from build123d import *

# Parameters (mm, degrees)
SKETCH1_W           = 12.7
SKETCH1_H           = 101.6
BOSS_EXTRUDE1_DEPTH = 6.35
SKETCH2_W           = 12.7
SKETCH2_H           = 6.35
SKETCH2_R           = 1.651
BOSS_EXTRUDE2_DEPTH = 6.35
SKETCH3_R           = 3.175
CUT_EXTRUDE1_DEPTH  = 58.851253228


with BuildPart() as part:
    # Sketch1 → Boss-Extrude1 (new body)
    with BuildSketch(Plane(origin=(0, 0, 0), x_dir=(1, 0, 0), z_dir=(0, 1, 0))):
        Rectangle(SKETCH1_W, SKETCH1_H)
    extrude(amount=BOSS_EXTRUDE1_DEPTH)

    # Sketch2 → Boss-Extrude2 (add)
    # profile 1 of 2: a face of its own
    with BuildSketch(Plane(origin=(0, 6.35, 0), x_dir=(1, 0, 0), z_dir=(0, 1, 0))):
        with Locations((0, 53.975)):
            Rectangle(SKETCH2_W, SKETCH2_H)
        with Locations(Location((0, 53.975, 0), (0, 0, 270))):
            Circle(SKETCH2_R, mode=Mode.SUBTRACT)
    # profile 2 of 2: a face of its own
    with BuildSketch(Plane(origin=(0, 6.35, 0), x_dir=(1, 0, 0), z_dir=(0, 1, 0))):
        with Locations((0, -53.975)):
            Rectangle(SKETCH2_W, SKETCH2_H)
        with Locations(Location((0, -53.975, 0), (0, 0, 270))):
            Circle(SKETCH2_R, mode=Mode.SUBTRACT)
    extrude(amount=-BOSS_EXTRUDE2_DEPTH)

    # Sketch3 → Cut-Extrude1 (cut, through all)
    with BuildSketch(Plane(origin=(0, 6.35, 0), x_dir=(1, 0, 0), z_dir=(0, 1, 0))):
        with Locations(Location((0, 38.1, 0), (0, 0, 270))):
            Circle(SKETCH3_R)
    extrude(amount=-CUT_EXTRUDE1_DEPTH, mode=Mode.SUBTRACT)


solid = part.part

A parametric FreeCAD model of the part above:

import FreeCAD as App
import Part
import Sketcher
Q = App.Units.Quantity

doc = App.newDocument("Part")
body = doc.addObject("PartDesign::Body", "Body")

sketch1 = body.newObject("Sketcher::SketchObject", "Sketch")
sketch1.AttachmentSupport = (doc.getObject("XZ_Plane"), [""])
sketch1.MapMode = "FlatFace"
sketch1.addGeometry([
    Part.LineSegment(App.Vector(-6, -51, 0), App.Vector(-6, 51, 0)),
    Part.LineSegment(App.Vector(-6, 51, 0), App.Vector(6, 51, 0)),
    Part.LineSegment(App.Vector(6, 51, 0), App.Vector(6, -51, 0)),
    Part.LineSegment(App.Vector(6, -51, 0), App.Vector(-6, -51, 0)),
], False)
sketch1.addConstraint([
    Sketcher.Constraint("Coincident", 0, 2, 1, 1),
    Sketcher.Constraint("Coincident", 1, 2, 2, 1),
    Sketcher.Constraint("Coincident", 2, 2, 3, 1),
    Sketcher.Constraint("Coincident", 3, 2, 0, 1),
    Sketcher.Constraint("Vertical", 0),
    Sketcher.Constraint("Horizontal", 1),
    Sketcher.Constraint("Vertical", 2),
    Sketcher.Constraint("Horizontal", 3),
    Sketcher.Constraint("Symmetric", 0, 2, 2, 2, -1, 1),
    Sketcher.Constraint("DistanceY", 0, 1, 0, 2, Q("4 in")),
    Sketcher.Constraint("DistanceX", 1, 1, 1, 2, Q("0.5 in")),
])
pad1 = body.newObject("PartDesign::Pad", "Pad")
pad1.Profile = sketch1
pad1.Length = Q("0.25 in")
pad1.Reversed = True

sketch2 = body.newObject("Sketcher::SketchObject", "Sketch001")
sketch2.AttachmentSupport = (doc.getObject("XZ_Plane"), [""])
sketch2.MapMode = "FlatFace"
sketch2.AttachmentOffset = App.Placement(App.Vector(0, 0, -0.25 * 25.4), App.Rotation())
sketch2.addGeometry([
    Part.LineSegment(App.Vector(-6.3, -57.1, 0), App.Vector(-6.3, -50.8, 0)),
    Part.LineSegment(App.Vector(-6.3, -50.8, 0), App.Vector(6.3, -50.8, 0)),
    Part.LineSegment(App.Vector(6.3, -50.8, 0), App.Vector(6.3, -57.1, 0)),
    Part.LineSegment(App.Vector(6.3, -57.1, 0), App.Vector(-6.3, -57.1, 0)),
    Part.Circle(App.Vector(0, -54, 0), App.Vector(0, 0, 1), 1.7),
    Part.LineSegment(App.Vector(-6.3, 50.8, 0), App.Vector(-6.3, 57.1, 0)),
    Part.LineSegment(App.Vector(-6.3, 57.1, 0), App.Vector(6.3, 57.1, 0)),
    Part.LineSegment(App.Vector(6.3, 57.1, 0), App.Vector(6.3, 50.8, 0)),
    Part.LineSegment(App.Vector(6.3, 50.8, 0), App.Vector(-6.3, 50.8, 0)),
    Part.Circle(App.Vector(0, 54, 0), App.Vector(0, 0, 1), 1.7),
], False)
sketch2.addConstraint([
    Sketcher.Constraint("Coincident", 0, 2, 1, 1),
    Sketcher.Constraint("Coincident", 1, 2, 2, 1),
    Sketcher.Constraint("Coincident", 2, 2, 3, 1),
    Sketcher.Constraint("Coincident", 3, 2, 0, 1),
    Sketcher.Constraint("Coincident", 5, 2, 6, 1),
    Sketcher.Constraint("Coincident", 6, 2, 7, 1),
    Sketcher.Constraint("Coincident", 7, 2, 8, 1),
    Sketcher.Constraint("Coincident", 8, 2, 5, 1),
    Sketcher.Constraint("Vertical", 0),
    Sketcher.Constraint("Horizontal", 1),
    Sketcher.Constraint("Vertical", 2),
    Sketcher.Constraint("Horizontal", 3),
    Sketcher.Constraint("Vertical", 5),
    Sketcher.Constraint("Horizontal", 6),
    Sketcher.Constraint("Vertical", 7),
    Sketcher.Constraint("Horizontal", 8),
    Sketcher.Constraint("Equal", 4, 9),
    Sketcher.Constraint("Symmetric", 4, 3, 9, 3, -1, 1),
    Sketcher.Constraint("Symmetric", 2, 2, 5, 2, -1, 1),
    Sketcher.Constraint("Symmetric", 0, 2, 7, 2, -1, 1),
    Sketcher.Constraint("PointOnObject", 4, 3, -2),
    Sketcher.Constraint("Vertical", 3, 2, 5, 2),
    Sketcher.Constraint("Diameter", 4, Q("0.13 in")),
    Sketcher.Constraint("DistanceX", 1, 1, 1, 2, Q("0.5 in")),
    Sketcher.Constraint("DistanceY", 0, 2, -1, 1, Q("2 in")),
    Sketcher.Constraint("DistanceY", 0, 1, 0, 2, Q("0.25 in")),
    Sketcher.Constraint("DistanceY", 4, 3, 9, 3, Q("4.25 in")),
])
pad2 = body.newObject("PartDesign::Pad", "Pad001")
pad2.Profile = sketch2
pad2.Length = Q("0.25 in")

sketch3 = body.newObject("Sketcher::SketchObject", "Sketch002")
sketch3.AttachmentSupport = (doc.getObject("XZ_Plane"), [""])
sketch3.MapMode = "FlatFace"
sketch3.AttachmentOffset = App.Placement(App.Vector(0, 0, -0.25 * 25.4), App.Rotation())
sketch3.addGeometry(Part.Circle(App.Vector(0, -38.1, 0), App.Vector(0, 0, 1), 3.2), False)
sketch3.addConstraint([
    Sketcher.Constraint("PointOnObject", 0, 3, -2),
    Sketcher.Constraint("Diameter", 0, Q("0.25 in")),
    Sketcher.Constraint("DistanceY", 0, 3, -1, 1, Q("1.5 in")),
])
pocket1 = body.newObject("PartDesign::Pocket", "Pocket")
pocket1.Profile = sketch3
pocket1.Type = "ThroughAll"
pocket1.Reversed = True

doc.recompute()
